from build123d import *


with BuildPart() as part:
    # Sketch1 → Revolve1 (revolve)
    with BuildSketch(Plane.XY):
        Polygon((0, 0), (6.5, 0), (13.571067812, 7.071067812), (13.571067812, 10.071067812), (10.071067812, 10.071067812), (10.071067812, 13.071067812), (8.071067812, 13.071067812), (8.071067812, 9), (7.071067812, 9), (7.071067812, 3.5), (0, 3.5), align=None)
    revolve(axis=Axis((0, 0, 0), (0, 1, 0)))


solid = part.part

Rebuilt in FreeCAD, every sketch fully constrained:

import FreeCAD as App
import Part
import Sketcher
from FreeCAD import Vector
Q = App.Units.Quantity

doc = App.newDocument("Part")
body = doc.addObject("PartDesign::Body", "Body")

# Sketch on XY plane
sketch1 = body.newObject("Sketcher::SketchObject", "Sketch")
sketch1.AttachmentSupport = (doc.getObject("XY_Plane"), [""])
sketch1.MapMode = "FlatFace"
sketch1.addGeometry([
    Part.LineSegment(Vector(0, 0, 0), Vector(6.5, 0, 0)),  # 0
    Part.LineSegment(Vector(6.5, 0, 0), Vector(13.571068, 7.071068, 0)),  # 1
    Part.LineSegment(Vector(13.571068, 7.071068, 0), Vector(13.571068, 10.071068, 0)),  # 2
    Part.LineSegment(Vector(13.571068, 10.071068, 0), Vector(10.071068, 10.071068, 0)),  # 3
    Part.LineSegment(Vector(10.071068, 10.071068, 0), Vector(10.071068, 13.071068, 0)),  # 4
    Part.LineSegment(Vector(10.071068, 13.071068, 0), Vector(8.071068, 13.071068, 0)),  # 5
    Part.LineSegment(Vector(8.071068, 13.071068, 0), Vector(8.071068, 9, 0)),  # 6
    Part.LineSegment(Vector(8.071068, 9, 0), Vector(7.071068, 9, 0)),  # 7
    Part.LineSegment(Vector(7.071068, 9, 0), Vector(7.071068, 3.5, 0)),  # 8
    Part.LineSegment(Vector(7.071068, 3.5, 0), Vector(0, 3.5, 0)),  # 9
    Part.LineSegment(Vector(0, 3.5, 0), Vector(0, 0, 0)),  # 10
], False)
sketch1.addConstraint([
    Sketcher.Constraint("Coincident", 0, 2, 1, 1),
    Sketcher.Constraint("Coincident", 1, 2, 2, 1),
    Sketcher.Constraint("Coincident", 2, 2, 3, 1),
    Sketcher.Constraint("Coincident", 3, 2, 4, 1),
    Sketcher.Constraint("Coincident", 4, 2, 5, 1),
    Sketcher.Constraint("Coincident", 5, 2, 6, 1),
    Sketcher.Constraint("Coincident", 6, 2, 7, 1),
    Sketcher.Constraint("Coincident", 7, 2, 8, 1),
    Sketcher.Constraint("Coincident", 8, 2, 9, 1),
    Sketcher.Constraint("Coincident", 9, 2, 10, 1),
    Sketcher.Constraint("Coincident", 10, 2, 0, 1),
    Sketcher.Constraint("Horizontal", 0),
    Sketcher.Constraint("Vertical", 2),
    Sketcher.Constraint("Horizontal", 3),
    Sketcher.Constraint("Vertical", 4),
    Sketcher.Constraint("Horizontal", 5),
    Sketcher.Constraint("Vertical", 6),
    Sketcher.Constraint("Horizontal", 7),
    Sketcher.Constraint("Vertical", 8),
    Sketcher.Constraint("Horizontal", 9),
    Sketcher.Constraint("Vertical", 10),
    Sketcher.Constraint("Coincident", 10, 2, -1, 1),
    Sketcher.Constraint("Equal", 2, 4),
    Sketcher.Constraint("Equal", 3, 10),
    Sketcher.Constraint("DistanceX", 5, 2, 5, 1, 2.0),
    Sketcher.Constraint("DistanceX", 7, 2, 7, 1, 1.0),
    Sketcher.Constraint("DistanceY", 2, 1, 2, 2, 3.0),
    Sketcher.Constraint("Angle", 1, Q("45 deg")),
    Sketcher.Constraint("Distance", 1, 10.0),
    Sketcher.Constraint("DistanceX", 0, 1, 0, 2, 6.5),
    Sketcher.Constraint("DistanceX", 3, 2, 3, 1, 3.5),
    Sketcher.Constraint("DistanceY", 8, 2, 8, 1, 5.5),
])
revolution = body.newObject("PartDesign::Revolution", "Revolution")
revolution.Profile = sketch1
revolution.ReferenceAxis = (sketch1, ["V_Axis"])
revolution.Angle = 360

doc.recompute()
